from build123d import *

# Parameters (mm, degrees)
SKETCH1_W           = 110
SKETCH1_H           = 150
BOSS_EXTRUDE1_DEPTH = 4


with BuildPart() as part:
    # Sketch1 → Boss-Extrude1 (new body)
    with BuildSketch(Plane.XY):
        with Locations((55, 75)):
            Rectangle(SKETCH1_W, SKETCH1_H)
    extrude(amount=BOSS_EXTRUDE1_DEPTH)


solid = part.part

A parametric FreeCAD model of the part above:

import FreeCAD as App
import Part
import Sketcher
from FreeCAD import Vector
Q = App.Units.Quantity

doc = App.newDocument("Part")
body = doc.addObject("PartDesign::Body", "Body")

# Sketch on XY plane
sketch1 = body.newObject("Sketcher::SketchObject", "Sketch")
sketch1.AttachmentSupport = (doc.getObject("XY_Plane"), [""])
sketch1.MapMode = "FlatFace"
sketch1.addGeometry([
    Part.LineSegment(Vector(0, 150, 0), Vector(0, 0, 0)),
    Part.LineSegment(Vector(0, 0, 0), Vector(110, 0, 0)),
    Part.LineSegment(Vector(110, 0, 0), Vector(110, 150, 0)),
    Part.LineSegment(Vector(110, 150, 0), Vector(0, 150, 0)),
], False)
sketch1.addConstraint([
    Sketcher.Constraint("Coincident", 0, 2, 1, 1),
    Sketcher.Constraint("Coincident", 1, 2, 2, 1),
    Sketcher.Constraint("Coincident", 2, 2, 3, 1),
    Sketcher.Constraint("Coincident", 3, 2, 0, 1),
    Sketcher.Constraint("Vertical", 0),
    Sketcher.Constraint("Horizontal", 1),
    Sketcher.Constraint("Vertical", 2),
    Sketcher.Constraint("Horizontal", 3),
    Sketcher.Constraint("Coincident", 0, 2, -1, 1),
    Sketcher.Constraint("DistanceX", 1, 1, 1, 2, Q("110 mm")),
    Sketcher.Constraint("DistanceY", 0, 2, 0, 1, Q("150 mm")),
])
pad1 = body.newObject("PartDesign::Pad", "Pad")
pad1.Profile = sketch1
pad1.Length = 4

doc.recompute()
